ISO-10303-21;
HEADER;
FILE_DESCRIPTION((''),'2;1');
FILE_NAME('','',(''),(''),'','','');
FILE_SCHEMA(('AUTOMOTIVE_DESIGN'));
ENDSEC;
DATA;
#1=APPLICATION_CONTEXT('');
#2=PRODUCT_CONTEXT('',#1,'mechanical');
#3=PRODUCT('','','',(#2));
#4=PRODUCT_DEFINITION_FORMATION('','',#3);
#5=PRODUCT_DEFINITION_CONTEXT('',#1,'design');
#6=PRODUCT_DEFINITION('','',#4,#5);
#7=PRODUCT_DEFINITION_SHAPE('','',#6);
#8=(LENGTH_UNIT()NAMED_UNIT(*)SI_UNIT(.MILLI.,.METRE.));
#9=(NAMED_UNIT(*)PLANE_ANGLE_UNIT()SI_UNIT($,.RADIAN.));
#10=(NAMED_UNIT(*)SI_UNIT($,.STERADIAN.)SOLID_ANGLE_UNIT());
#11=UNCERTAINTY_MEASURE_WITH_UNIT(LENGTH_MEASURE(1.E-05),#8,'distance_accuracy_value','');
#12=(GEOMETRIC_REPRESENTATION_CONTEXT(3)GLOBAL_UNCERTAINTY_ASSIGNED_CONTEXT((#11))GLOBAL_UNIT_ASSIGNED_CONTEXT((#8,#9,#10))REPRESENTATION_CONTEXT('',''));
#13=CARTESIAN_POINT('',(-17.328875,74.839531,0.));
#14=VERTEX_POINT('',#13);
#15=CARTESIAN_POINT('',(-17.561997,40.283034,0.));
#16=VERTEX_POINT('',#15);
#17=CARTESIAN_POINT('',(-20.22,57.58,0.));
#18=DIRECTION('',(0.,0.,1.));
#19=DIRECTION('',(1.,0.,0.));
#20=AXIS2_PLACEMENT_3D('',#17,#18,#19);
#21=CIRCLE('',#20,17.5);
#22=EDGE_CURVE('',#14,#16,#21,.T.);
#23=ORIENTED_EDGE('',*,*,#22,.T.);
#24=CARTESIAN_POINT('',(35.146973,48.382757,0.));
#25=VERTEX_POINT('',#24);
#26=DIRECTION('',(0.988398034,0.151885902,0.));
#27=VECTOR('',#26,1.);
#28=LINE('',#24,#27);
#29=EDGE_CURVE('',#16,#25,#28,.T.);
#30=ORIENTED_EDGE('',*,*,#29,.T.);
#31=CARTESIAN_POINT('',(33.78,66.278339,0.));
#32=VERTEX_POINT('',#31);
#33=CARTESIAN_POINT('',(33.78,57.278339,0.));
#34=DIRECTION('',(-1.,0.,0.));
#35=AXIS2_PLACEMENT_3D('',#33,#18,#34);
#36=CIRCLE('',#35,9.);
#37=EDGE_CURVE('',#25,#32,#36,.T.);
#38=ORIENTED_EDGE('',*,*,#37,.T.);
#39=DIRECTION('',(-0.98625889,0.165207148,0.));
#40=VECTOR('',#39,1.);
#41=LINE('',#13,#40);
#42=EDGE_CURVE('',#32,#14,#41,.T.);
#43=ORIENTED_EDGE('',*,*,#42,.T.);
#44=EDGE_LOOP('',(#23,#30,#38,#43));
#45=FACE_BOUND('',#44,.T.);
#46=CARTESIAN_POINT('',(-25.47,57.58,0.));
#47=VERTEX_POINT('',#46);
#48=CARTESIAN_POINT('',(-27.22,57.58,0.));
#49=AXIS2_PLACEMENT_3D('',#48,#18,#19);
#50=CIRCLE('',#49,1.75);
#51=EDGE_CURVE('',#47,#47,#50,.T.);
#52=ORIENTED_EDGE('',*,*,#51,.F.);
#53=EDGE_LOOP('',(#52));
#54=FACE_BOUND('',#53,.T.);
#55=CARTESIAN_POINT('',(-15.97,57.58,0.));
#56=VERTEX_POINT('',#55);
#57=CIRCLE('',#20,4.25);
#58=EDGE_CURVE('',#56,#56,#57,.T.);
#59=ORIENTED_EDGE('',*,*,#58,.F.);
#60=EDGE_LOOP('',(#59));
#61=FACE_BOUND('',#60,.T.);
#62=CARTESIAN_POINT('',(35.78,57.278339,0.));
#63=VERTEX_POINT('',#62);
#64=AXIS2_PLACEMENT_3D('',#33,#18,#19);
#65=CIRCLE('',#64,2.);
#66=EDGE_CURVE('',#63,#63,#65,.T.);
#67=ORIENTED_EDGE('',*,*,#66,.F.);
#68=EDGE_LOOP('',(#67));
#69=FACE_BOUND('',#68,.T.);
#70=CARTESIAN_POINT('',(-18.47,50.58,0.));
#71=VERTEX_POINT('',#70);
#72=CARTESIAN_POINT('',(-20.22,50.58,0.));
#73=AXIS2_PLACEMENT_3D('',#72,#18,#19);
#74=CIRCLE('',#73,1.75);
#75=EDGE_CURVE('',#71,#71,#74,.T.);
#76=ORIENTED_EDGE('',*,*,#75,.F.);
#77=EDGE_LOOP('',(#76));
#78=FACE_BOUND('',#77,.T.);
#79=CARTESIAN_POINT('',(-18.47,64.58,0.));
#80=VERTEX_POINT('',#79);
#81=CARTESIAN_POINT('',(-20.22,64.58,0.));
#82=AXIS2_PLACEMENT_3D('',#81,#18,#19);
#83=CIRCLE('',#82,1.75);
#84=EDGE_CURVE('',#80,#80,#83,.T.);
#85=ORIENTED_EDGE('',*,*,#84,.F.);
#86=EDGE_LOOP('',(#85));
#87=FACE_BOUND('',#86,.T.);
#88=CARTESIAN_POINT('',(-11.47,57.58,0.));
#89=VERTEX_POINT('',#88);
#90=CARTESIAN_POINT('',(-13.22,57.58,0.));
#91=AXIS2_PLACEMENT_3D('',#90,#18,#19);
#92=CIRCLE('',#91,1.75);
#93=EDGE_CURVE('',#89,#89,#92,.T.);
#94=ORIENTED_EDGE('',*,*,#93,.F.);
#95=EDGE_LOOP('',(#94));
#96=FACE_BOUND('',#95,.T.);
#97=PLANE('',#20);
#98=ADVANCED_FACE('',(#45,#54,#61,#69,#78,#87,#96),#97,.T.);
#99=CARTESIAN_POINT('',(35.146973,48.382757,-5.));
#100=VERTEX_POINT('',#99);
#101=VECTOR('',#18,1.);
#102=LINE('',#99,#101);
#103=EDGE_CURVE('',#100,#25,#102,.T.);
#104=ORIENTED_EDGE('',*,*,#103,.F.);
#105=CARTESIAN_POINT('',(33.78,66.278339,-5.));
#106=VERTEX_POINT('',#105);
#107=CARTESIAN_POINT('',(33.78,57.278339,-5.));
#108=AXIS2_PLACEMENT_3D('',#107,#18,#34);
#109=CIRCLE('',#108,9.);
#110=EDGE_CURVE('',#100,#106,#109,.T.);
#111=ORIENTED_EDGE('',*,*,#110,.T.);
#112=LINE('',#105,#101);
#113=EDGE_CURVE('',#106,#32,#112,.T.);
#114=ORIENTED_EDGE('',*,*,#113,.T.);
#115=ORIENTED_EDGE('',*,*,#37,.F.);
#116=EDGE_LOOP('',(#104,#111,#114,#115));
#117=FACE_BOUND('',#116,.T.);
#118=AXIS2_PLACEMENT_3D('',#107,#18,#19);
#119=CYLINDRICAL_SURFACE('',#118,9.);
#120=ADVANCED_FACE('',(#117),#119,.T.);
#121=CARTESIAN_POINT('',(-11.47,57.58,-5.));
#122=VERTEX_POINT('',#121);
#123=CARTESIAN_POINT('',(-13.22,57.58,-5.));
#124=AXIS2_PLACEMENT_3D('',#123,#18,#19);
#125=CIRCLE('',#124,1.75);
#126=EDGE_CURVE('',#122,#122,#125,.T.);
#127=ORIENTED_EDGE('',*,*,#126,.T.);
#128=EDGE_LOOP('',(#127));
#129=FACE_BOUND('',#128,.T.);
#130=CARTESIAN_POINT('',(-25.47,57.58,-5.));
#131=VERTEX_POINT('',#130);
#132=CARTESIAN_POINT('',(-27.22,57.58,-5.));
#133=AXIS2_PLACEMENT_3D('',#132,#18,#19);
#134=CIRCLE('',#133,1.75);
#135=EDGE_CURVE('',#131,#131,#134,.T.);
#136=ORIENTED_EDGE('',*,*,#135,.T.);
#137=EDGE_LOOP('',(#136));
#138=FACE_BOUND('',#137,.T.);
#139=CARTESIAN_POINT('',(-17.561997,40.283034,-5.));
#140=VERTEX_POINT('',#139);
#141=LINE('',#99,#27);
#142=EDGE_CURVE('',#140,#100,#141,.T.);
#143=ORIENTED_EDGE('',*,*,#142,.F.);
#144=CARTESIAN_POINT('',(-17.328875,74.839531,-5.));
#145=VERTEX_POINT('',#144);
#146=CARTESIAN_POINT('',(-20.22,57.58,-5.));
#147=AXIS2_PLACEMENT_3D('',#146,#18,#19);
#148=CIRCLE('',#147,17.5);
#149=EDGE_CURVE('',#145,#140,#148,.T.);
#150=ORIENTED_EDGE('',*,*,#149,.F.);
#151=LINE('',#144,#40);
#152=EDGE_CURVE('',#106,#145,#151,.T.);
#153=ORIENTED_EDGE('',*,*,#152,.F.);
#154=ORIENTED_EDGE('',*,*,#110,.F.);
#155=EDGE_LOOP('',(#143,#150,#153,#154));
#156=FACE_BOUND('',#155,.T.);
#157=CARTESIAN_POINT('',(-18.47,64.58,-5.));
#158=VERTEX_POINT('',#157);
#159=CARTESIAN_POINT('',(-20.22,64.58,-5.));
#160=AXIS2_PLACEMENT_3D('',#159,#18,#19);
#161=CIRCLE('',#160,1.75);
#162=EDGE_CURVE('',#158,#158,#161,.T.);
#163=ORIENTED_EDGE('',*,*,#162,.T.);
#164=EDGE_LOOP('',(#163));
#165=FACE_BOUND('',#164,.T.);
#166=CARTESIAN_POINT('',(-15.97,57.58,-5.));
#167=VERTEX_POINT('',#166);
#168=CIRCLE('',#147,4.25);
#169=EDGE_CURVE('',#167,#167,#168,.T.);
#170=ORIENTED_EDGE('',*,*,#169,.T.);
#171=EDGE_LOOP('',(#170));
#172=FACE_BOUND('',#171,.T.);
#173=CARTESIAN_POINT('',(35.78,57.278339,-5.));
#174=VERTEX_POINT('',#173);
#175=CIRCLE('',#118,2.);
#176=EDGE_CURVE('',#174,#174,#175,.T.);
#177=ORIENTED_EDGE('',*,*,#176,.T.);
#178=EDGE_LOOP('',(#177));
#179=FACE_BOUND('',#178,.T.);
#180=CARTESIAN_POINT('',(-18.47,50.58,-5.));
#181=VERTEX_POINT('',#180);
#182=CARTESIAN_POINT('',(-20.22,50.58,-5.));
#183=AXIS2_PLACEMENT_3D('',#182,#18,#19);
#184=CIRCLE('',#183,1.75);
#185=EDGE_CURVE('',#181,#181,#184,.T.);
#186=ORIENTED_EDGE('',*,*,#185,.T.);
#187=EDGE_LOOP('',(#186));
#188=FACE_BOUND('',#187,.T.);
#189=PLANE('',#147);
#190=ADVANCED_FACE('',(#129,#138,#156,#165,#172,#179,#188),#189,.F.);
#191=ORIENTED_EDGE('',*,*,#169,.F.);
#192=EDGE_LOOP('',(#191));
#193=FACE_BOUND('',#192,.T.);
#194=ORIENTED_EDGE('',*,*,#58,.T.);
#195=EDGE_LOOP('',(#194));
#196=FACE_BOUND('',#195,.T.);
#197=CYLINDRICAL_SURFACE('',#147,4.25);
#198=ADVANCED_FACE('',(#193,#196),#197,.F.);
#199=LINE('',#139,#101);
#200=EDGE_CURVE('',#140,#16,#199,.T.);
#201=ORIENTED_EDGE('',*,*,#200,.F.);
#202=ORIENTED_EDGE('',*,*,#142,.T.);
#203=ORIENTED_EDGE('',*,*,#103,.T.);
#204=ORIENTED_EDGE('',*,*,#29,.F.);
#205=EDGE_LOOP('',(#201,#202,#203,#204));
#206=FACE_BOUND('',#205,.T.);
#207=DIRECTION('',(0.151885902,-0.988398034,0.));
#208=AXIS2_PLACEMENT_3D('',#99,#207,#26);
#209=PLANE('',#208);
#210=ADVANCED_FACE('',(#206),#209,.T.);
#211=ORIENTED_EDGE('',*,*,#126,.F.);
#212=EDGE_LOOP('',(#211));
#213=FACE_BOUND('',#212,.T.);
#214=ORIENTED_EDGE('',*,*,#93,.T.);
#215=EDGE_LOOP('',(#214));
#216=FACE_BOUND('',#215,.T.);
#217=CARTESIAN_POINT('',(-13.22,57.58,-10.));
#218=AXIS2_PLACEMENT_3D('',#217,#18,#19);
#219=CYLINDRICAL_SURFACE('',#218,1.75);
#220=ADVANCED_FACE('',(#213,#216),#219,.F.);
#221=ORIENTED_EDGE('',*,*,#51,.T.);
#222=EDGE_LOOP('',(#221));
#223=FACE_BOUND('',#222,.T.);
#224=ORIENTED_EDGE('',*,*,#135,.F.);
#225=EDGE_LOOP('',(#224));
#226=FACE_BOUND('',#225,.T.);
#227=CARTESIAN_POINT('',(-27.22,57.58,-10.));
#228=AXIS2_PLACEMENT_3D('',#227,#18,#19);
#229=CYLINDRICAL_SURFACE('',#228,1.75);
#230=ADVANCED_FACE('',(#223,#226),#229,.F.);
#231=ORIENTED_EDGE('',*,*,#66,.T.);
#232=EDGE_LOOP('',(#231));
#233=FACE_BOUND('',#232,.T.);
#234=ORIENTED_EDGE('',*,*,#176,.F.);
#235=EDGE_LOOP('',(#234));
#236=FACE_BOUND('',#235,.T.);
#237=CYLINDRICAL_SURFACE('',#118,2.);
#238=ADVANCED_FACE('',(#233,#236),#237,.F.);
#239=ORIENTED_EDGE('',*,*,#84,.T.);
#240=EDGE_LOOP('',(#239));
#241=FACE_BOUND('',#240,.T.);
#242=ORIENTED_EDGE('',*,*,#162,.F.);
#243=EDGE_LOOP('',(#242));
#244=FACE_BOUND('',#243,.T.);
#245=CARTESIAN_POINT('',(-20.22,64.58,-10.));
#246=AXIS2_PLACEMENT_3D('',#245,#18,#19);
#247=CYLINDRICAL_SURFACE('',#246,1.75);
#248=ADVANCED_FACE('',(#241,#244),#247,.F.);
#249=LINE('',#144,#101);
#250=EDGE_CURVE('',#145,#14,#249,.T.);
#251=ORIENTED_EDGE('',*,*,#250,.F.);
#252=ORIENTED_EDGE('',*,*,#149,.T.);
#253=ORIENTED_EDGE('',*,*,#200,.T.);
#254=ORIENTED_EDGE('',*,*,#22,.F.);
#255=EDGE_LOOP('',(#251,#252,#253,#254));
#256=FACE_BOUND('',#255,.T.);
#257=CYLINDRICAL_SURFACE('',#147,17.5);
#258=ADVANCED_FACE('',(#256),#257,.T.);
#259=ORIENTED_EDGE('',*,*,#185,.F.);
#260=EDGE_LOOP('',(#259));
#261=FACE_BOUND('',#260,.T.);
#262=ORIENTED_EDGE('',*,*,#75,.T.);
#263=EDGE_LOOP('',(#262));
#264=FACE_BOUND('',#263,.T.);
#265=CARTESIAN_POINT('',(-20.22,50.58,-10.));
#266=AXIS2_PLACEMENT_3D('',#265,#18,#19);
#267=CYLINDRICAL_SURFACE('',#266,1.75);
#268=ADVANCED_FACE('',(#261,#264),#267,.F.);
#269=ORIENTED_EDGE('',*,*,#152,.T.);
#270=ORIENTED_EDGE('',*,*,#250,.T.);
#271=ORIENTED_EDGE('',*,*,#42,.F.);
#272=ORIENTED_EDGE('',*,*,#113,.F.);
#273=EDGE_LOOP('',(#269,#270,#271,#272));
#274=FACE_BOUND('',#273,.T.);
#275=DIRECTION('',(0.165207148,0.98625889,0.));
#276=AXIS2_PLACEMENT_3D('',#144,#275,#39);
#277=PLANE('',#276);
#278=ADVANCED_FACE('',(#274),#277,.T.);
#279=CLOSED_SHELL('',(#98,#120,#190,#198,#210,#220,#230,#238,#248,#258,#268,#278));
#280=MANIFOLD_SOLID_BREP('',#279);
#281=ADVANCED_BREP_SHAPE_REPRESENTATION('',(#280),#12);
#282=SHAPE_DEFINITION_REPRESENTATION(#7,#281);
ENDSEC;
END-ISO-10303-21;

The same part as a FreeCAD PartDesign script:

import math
import FreeCAD as App
import Part
import Sketcher
Q = App.Units.Quantity

doc = App.newDocument("Part")
body = doc.addObject("PartDesign::Body", "Body")

# Sketch on XY plane
sketch1 = body.newObject("Sketcher::SketchObject", "Sketch")
sketch1.AttachmentSupport = (doc.getObject("XY_Plane"), [""])
sketch1.MapMode = "FlatFace"
sketch1.addGeometry([
    Part.LineSegment(App.Vector(33.8, 66.3, 0), App.Vector(-17.3, 74.8, 0)),  # 0
    Part.ArcOfCircle(Part.Circle(App.Vector(-20.2, 57.6, 0), App.Vector(0, 0, 1), 17.5), math.radians(80), math.radians(279)),  # 1
    Part.LineSegment(App.Vector(-17.6, 40.3, 0), App.Vector(35.1, 48.4, 0)),  # 2
    Part.ArcOfCircle(Part.Circle(App.Vector(33.8, 57.3, 0), App.Vector(0, 0, 1), 9), math.radians(-81), math.radians(90)),  # 3
    Part.Circle(App.Vector(33.8, 57.3, 0), App.Vector(0, 0, 1), 2),  # 4
    Part.Circle(App.Vector(-20.2, 57.6, 0), App.Vector(0, 0, 1), 4.2),  # 5
], False)
sketch1.addConstraint([
    Sketcher.Constraint("Tangent", 0, 2, 1, 1),
    Sketcher.Constraint("Tangent", 1, 2, 2, 1),
    Sketcher.Constraint("Tangent", 2, 2, 3, 1),
    Sketcher.Constraint("Coincident", 3, 2, 0, 1),
    Sketcher.Constraint("Coincident", 4, 3, 3, 3),
    Sketcher.Constraint("Coincident", 5, 3, 1, 3),
    Sketcher.Constraint("Vertical", 4, 3, 3, 2),
    Sketcher.Constraint("Diameter", 4, Q("4 mm")),
    Sketcher.Constraint("Radius", 3, Q("9 mm")),
    Sketcher.Constraint("Diameter", 5, Q("8.5 mm")),
    Sketcher.Constraint("Radius", 1, Q("17.5 mm")),
    Sketcher.Constraint("DistanceX", 1, 3, 3, 3, Q("54 mm")),
    Sketcher.Constraint("DistanceX", 1, 3, -1, 1, Q("20.22 mm")),
    Sketcher.Constraint("DistanceY", -1, 1, 1, 3, Q("57.58 mm")),
    Sketcher.Constraint("DistanceY", -1, 1, 3, 3, Q("57.278339 mm")),
])
pad1 = body.newObject("PartDesign::Pad", "Pad")
pad1.Profile = sketch1
pad1.Length = 5
pad1.Reversed = True

# Sketch on XY plane
sketch2 = body.newObject("Sketcher::SketchObject", "Sketch001")
sketch2.AttachmentSupport = (doc.getObject("XY_Plane"), [""])
sketch2.MapMode = "FlatFace"
sketch2.addGeometry([
    Part.Circle(App.Vector(-13.2, 57.6, 0), App.Vector(0, 0, 1), 1.8),
    Part.Circle(App.Vector(-27.2, 57.6, 0), App.Vector(0, 0, 1), 1.8),
    Part.Circle(App.Vector(-20.2, 64.6, 0), App.Vector(0, 0, 1), 1.8),
    Part.Circle(App.Vector(-20.2, 50.6, 0), App.Vector(0, 0, 1), 1.8),
], False)
sketch2.addConstraint([
    Sketcher.Constraint("Equal", 0, 1),
    Sketcher.Constraint("Equal", 1, 2),
    Sketcher.Constraint("Equal", 2, 3),
    Sketcher.Constraint("Horizontal", 0, 3, 1, 3),
    Sketcher.Constraint("Vertical", 2, 3, 3, 3),
    Sketcher.Constraint("Diameter", 0, Q("3.5 mm")),
    Sketcher.Constraint("DistanceX", 1, 3, 0, 3, Q("14 mm")),
    Sketcher.Constraint("DistanceX", 2, 3, 0, 3, Q("7 mm")),
    Sketcher.Constraint("DistanceY", 0, 3, 2, 3, Q("7 mm")),
    Sketcher.Constraint("DistanceY", 3, 3, 0, 3, Q("7 mm")),
    Sketcher.Constraint("DistanceX", 0, 3, -1, 1, Q("13.22 mm")),
    Sketcher.Constraint("DistanceY", -1, 1, 0, 3, Q("57.58 mm")),
])
pocket1 = body.newObject("PartDesign::Pocket", "Pocket")
pocket1.Profile = sketch2
pocket1.Length = 10

doc.recompute()
